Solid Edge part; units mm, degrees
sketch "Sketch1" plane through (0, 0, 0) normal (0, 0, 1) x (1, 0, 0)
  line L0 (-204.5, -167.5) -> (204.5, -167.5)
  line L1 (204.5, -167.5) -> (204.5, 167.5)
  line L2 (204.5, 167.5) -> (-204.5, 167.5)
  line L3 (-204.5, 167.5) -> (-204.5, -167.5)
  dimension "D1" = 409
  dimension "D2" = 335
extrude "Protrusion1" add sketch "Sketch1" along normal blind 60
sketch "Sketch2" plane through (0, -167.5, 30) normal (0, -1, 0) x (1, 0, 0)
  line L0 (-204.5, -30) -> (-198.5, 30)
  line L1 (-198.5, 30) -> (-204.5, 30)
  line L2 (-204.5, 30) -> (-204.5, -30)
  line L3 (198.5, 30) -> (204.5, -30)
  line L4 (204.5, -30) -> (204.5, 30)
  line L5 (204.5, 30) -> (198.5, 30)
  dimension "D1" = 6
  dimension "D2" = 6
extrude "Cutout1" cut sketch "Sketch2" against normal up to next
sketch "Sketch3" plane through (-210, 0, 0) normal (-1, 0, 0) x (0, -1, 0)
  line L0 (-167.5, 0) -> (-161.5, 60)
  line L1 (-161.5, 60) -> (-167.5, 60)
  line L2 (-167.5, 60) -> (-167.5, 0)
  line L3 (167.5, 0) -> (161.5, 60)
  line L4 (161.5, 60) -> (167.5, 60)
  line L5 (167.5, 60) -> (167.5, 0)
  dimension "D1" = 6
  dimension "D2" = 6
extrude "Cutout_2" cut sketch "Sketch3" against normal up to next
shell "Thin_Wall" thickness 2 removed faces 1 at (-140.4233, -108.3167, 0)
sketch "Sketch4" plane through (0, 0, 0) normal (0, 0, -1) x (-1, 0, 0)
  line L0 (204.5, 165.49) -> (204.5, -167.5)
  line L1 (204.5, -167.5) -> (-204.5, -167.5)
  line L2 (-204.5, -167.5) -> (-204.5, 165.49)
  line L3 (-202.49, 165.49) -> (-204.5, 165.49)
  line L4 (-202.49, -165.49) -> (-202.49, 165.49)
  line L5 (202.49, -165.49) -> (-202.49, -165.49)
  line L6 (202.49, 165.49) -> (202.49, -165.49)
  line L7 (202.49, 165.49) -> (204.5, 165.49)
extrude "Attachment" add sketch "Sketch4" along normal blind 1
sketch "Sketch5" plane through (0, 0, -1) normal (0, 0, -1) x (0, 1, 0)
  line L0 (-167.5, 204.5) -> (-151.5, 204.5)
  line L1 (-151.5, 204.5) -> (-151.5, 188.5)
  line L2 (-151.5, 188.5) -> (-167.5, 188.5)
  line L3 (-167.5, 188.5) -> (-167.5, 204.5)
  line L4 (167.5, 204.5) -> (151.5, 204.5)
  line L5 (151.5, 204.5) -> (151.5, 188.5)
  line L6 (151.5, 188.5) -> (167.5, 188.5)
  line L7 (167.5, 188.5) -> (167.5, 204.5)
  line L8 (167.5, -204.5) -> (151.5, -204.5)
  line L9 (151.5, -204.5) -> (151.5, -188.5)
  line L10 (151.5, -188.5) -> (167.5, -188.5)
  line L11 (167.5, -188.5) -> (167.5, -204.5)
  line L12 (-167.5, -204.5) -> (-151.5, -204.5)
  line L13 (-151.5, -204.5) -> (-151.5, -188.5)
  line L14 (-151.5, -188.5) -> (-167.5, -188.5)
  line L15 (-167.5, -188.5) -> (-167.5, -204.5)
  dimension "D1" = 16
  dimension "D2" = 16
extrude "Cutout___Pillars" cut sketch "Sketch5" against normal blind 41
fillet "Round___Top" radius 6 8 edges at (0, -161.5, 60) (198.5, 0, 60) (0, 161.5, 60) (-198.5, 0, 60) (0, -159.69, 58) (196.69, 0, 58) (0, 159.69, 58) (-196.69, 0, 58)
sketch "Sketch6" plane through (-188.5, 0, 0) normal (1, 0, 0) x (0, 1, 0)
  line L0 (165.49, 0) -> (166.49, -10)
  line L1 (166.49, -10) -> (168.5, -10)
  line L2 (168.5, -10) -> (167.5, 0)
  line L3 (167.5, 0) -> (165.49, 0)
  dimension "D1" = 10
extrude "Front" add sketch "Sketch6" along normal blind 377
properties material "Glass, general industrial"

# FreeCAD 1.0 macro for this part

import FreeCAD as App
import Part
import Sketcher
from FreeCAD import Vector
Q = App.Units.Quantity


def edges_at(feature, points):
    """Names of the edges that pass closest to the given points."""
    edges = feature.Shape.Edges
    near = lambda p: min(range(len(edges)), key=lambda i: edges[i].distToShape(Part.Vertex(*p))[0])
    return sorted({f"Edge{near(p) + 1}" for p in points})


def faces_at(feature, points):
    """Names of the faces that lie closest to the given points."""
    faces = feature.Shape.Faces
    near = lambda p: min(range(len(faces)), key=lambda i: faces[i].distToShape(Part.Vertex(*p))[0])
    return sorted({f"Face{near(p) + 1}" for p in points})

doc = App.newDocument("Part")
body = doc.addObject("PartDesign::Body", "Body")

sketch1 = doc.addObject("Sketcher::SketchObject", "Sketch")
body.addObject(sketch1)
sketch1.AttachmentSupport = (doc.XY_Plane, [""])
sketch1.MapMode = "FlatFace"
sketch1.addGeometry([
    Part.LineSegment(Vector(-204, 168, 0), Vector(-204, -168, 0)),
    Part.LineSegment(Vector(-204, -168, 0), Vector(204, -168, 0)),
    Part.LineSegment(Vector(204, -168, 0), Vector(204, 168, 0)),
    Part.LineSegment(Vector(204, 168, 0), Vector(-204, 168, 0)),
], False)
sketch1.addConstraint([
    Sketcher.Constraint("Coincident", 0, 2, 1, 1),
    Sketcher.Constraint("Coincident", 1, 2, 2, 1),
    Sketcher.Constraint("Coincident", 2, 2, 3, 1),
    Sketcher.Constraint("Coincident", 3, 2, 0, 1),
    Sketcher.Constraint("Vertical", 0),
    Sketcher.Constraint("Horizontal", 1),
    Sketcher.Constraint("Vertical", 2),
    Sketcher.Constraint("Horizontal", 3),
    Sketcher.Constraint("Symmetric", 0, 2, 2, 2, -1, 1),
    Sketcher.Constraint("DistanceX", 0, 2, -1, 1, Q("204.5 mm")),
    Sketcher.Constraint("DistanceY", 0, 2, 0, 1, Q("335 mm")),
])
pad1 = doc.addObject("PartDesign::Pad", "Pad")
body.addObject(pad1)
pad1.Profile = sketch1
pad1.Length = 60

sketch2 = doc.addObject("Sketcher::SketchObject", "Sketch001")
body.addObject(sketch2)
sketch2.AttachmentSupport = (doc.XZ_Plane, [""])
sketch2.MapMode = "FlatFace"
sketch2.AttachmentOffset = App.Placement(Vector(0, 0, 167.5), App.Rotation())
sketch2.addGeometry([
    Part.LineSegment(Vector(-204, 60, 0), Vector(-204, 0, 0)),
    Part.LineSegment(Vector(-204, 0, 0), Vector(-198, 60, 0)),
    Part.LineSegment(Vector(-198, 60, 0), Vector(-204, 60, 0)),
    Part.LineSegment(Vector(204, 60, 0), Vector(198, 60, 0)),
    Part.LineSegment(Vector(198, 60, 0), Vector(204, 0, 0)),
    Part.LineSegment(Vector(204, 0, 0), Vector(204, 60, 0)),
], False)
sketch2.addConstraint([
    Sketcher.Constraint("Coincident", 0, 2, 1, 1),
    Sketcher.Constraint("Coincident", 1, 2, 2, 1),
    Sketcher.Constraint("Coincident", 2, 2, 0, 1),
    Sketcher.Constraint("Coincident", 3, 2, 4, 1),
    Sketcher.Constraint("Coincident", 4, 2, 5, 1),
    Sketcher.Constraint("Coincident", 5, 2, 3, 1),
    Sketcher.Constraint("Vertical", 0),
    Sketcher.Constraint("Horizontal", 2),
    Sketcher.Constraint("Horizontal", 3),
    Sketcher.Constraint("Vertical", 5),
    Sketcher.Constraint("Symmetric", 0, 2, 4, 2, -1, 1),
    Sketcher.Constraint("Symmetric", 1, 2, 3, 2, -2),
    Sketcher.Constraint("PointOnObject", 0, 2, -1),
    Sketcher.Constraint("DistanceX", 0, 2, -1, 1, Q("204.5 mm")),
    Sketcher.Constraint("DistanceX", 1, 2, -1, 1, Q("198.5 mm")),
    Sketcher.Constraint("DistanceY", 0, 2, 0, 1, Q("60 mm")),
])
pocket1 = doc.addObject("PartDesign::Pocket", "Pocket")
body.addObject(pocket1)
pocket1.Profile = sketch2
pocket1.Type = "UpToFirst"

sketch3 = doc.addObject("Sketcher::SketchObject", "Sketch002")
body.addObject(sketch3)
sketch3.AttachmentSupport = (doc.YZ_Plane, [""])
sketch3.MapMode = "FlatFace"
sketch3.AttachmentOffset = App.Placement(Vector(0, 0, -210), App.Rotation())
sketch3.addGeometry([
    Part.LineSegment(Vector(168, 60, 0), Vector(168, 0, 0)),
    Part.LineSegment(Vector(168, 0, 0), Vector(162, 60, 0)),
    Part.LineSegment(Vector(162, 60, 0), Vector(168, 60, 0)),
    Part.LineSegment(Vector(-162, 60, 0), Vector(-168, 0, 0)),
    Part.LineSegment(Vector(-168, 0, 0), Vector(-168, 60, 0)),
    Part.LineSegment(Vector(-168, 60, 0), Vector(-162, 60, 0)),
], False)
sketch3.addConstraint([
    Sketcher.Constraint("Coincident", 0, 2, 1, 1),
    Sketcher.Constraint("Coincident", 1, 2, 2, 1),
    Sketcher.Constraint("Coincident", 2, 2, 0, 1),
    Sketcher.Constraint("Coincident", 3, 2, 4, 1),
    Sketcher.Constraint("Coincident", 4, 2, 5, 1),
    Sketcher.Constraint("Coincident", 5, 2, 3, 1),
    Sketcher.Constraint("Vertical", 0),
    Sketcher.Constraint("Horizontal", 2),
    Sketcher.Constraint("Vertical", 4),
    Sketcher.Constraint("Horizontal", 5),
    Sketcher.Constraint("Symmetric", 0, 2, 3, 2, -1, 1),
    Sketcher.Constraint("Symmetric", 1, 2, 5, 2, -2),
    Sketcher.Constraint("PointOnObject", 0, 2, -1),
    Sketcher.Constraint("DistanceX", -1, 1, 1, 2, Q("161.5 mm")),
    Sketcher.Constraint("DistanceX", 2, 1, 2, 2, Q("6 mm")),
    Sketcher.Constraint("DistanceY", 0, 2, 0, 1, Q("60 mm")),
])
pocket2 = doc.addObject("PartDesign::Pocket", "Pocket001")
body.addObject(pocket2)
pocket2.Profile = sketch3
pocket2.Length = 414.5
pocket2.Reversed = True
doc.recompute()

thickness = doc.addObject("PartDesign::Thickness", "Thickness")
body.addObject(thickness)
thickness.Base = (pocket2, faces_at(pocket2, [(-140.423, -108.317, 0)]))
thickness.Value = 2
thickness.Reversed = True
thickness.Join = "Intersection"

sketch4 = doc.addObject("Sketcher::SketchObject", "Sketch003")
body.addObject(sketch4)
sketch4.AttachmentSupport = (doc.XY_Plane, [""])
sketch4.MapMode = "FlatFace"
sketch4.addGeometry([
    Part.LineSegment(Vector(-204.5, -167.5, 0), Vector(-204.5, 165.5, 0)),
    Part.LineSegment(Vector(-204.5, 165.5, 0), Vector(-202.5, 165.5, 0)),
    Part.LineSegment(Vector(-202.5, 165.5, 0), Vector(-202.5, -165.5, 0)),
    Part.LineSegment(Vector(-202.5, -165.5, 0), Vector(202.5, -165.5, 0)),
    Part.LineSegment(Vector(202.5, -165.5, 0), Vector(202.5, 165.5, 0)),
    Part.LineSegment(Vector(202.5, 165.5, 0), Vector(204.5, 165.5, 0)),
    Part.LineSegment(Vector(204.5, 165.5, 0), Vector(204.5, -167.5, 0)),
    Part.LineSegment(Vector(204.5, -167.5, 0), Vector(-204.5, -167.5, 0)),
], False)
sketch4.addConstraint([
    Sketcher.Constraint("Coincident", 0, 2, 1, 1),
    Sketcher.Constraint("Coincident", 1, 2, 2, 1),
    Sketcher.Constraint("Coincident", 2, 2, 3, 1),
    Sketcher.Constraint("Coincident", 3, 2, 4, 1),
    Sketcher.Constraint("Coincident", 4, 2, 5, 1),
    Sketcher.Constraint("Coincident", 5, 2, 6, 1),
    Sketcher.Constraint("Coincident", 6, 2, 7, 1),
    Sketcher.Constraint("Coincident", 7, 2, 0, 1),
    Sketcher.Constraint("Vertical", 0),
    Sketcher.Constraint("Horizontal", 1),
    Sketcher.Constraint("Vertical", 2),
    Sketcher.Constraint("Horizontal", 3),
    Sketcher.Constraint("Vertical", 4),
    Sketcher.Constraint("Horizontal", 5),
    Sketcher.Constraint("Vertical", 6),
    Sketcher.Constraint("Horizontal", 7),
    Sketcher.Constraint("Symmetric", 1, 2, 3, 2, -1, 1),
    Sketcher.Constraint("Symmetric", 0, 2, 5, 2, -2),
    Sketcher.Constraint("DistanceX", 7, 2, 7, 1, Q("409 mm")),
    Sketcher.Constraint("DistanceX", 1, 1, 1, 2, Q("2.01 mm")),
    Sketcher.Constraint("DistanceY", 0, 1, 0, 2, Q("332.99 mm")),
    Sketcher.Constraint("DistanceY", 2, 2, 2, 1, Q("330.98 mm")),
])
pad2 = doc.addObject("PartDesign::Pad", "Pad001")
body.addObject(pad2)
pad2.Profile = sketch4
pad2.Length = 1
pad2.Reversed = True

sketch5 = doc.addObject("Sketcher::SketchObject", "Sketch004")
body.addObject(sketch5)
sketch5.AttachmentSupport = (doc.XY_Plane, [""])
sketch5.MapMode = "FlatFace"
sketch5.AttachmentOffset = App.Placement(Vector(0, 0, -1), App.Rotation())
sketch5.addGeometry([
    Part.LineSegment(Vector(204, -152, 0), Vector(204, -168, 0)),
    Part.LineSegment(Vector(204, -168, 0), Vector(188, -168, 0)),
    Part.LineSegment(Vector(188, -168, 0), Vector(188, -152, 0)),
    Part.LineSegment(Vector(188, -152, 0), Vector(204, -152, 0)),
    Part.LineSegment(Vector(188, 168, 0), Vector(204, 168, 0)),
    Part.LineSegment(Vector(204, 168, 0), Vector(204, 152, 0)),
    Part.LineSegment(Vector(204, 152, 0), Vector(188, 152, 0)),
    Part.LineSegment(Vector(188, 152, 0), Vector(188, 168, 0)),
    Part.LineSegment(Vector(-204, 152, 0), Vector(-204, 168, 0)),
    Part.LineSegment(Vector(-204, 168, 0), Vector(-188, 168, 0)),
    Part.LineSegment(Vector(-188, 168, 0), Vector(-188, 152, 0)),
    Part.LineSegment(Vector(-188, 152, 0), Vector(-204, 152, 0)),
    Part.LineSegment(Vector(-188, -168, 0), Vector(-204, -168, 0)),
    Part.LineSegment(Vector(-204, -168, 0), Vector(-204, -152, 0)),
    Part.LineSegment(Vector(-204, -152, 0), Vector(-188, -152, 0)),
    Part.LineSegment(Vector(-188, -152, 0), Vector(-188, -168, 0)),
], False)
sketch5.addConstraint([
    Sketcher.Constraint("Coincident", 0, 2, 1, 1),
    Sketcher.Constraint("Coincident", 1, 2, 2, 1),
    Sketcher.Constraint("Coincident", 2, 2, 3, 1),
    Sketcher.Constraint("Coincident", 3, 2, 0, 1),
    Sketcher.Constraint("Coincident", 4, 2, 5, 1),
    Sketcher.Constraint("Coincident", 5, 2, 6, 1),
    Sketcher.Constraint("Coincident", 6, 2, 7, 1),
    Sketcher.Constraint("Coincident", 7, 2, 4, 1),
    Sketcher.Constraint("Coincident", 8, 2, 9, 1),
    Sketcher.Constraint("Coincident", 9, 2, 10, 1),
    Sketcher.Constraint("Coincident", 10, 2, 11, 1),
    Sketcher.Constraint("Coincident", 11, 2, 8, 1),
    Sketcher.Constraint("Coincident", 12, 2, 13, 1),
    Sketcher.Constraint("Coincident", 13, 2, 14, 1),
    Sketcher.Constraint("Coincident", 14, 2, 15, 1),
    Sketcher.Constraint("Coincident", 15, 2, 12, 1),
    Sketcher.Constraint("Vertical", 0),
    Sketcher.Constraint("Horizontal", 1),
    Sketcher.Constraint("Vertical", 2),
    Sketcher.Constraint("Horizontal", 3),
    Sketcher.Constraint("Horizontal", 4),
    Sketcher.Constraint("Vertical", 5),
    Sketcher.Constraint("Horizontal", 6),
    Sketcher.Constraint("Vertical", 7),
    Sketcher.Constraint("Vertical", 8),
    Sketcher.Constraint("Horizontal", 9),
    Sketcher.Constraint("Vertical", 10),
    Sketcher.Constraint("Horizontal", 11),
    Sketcher.Constraint("Horizontal", 12),
    Sketcher.Constraint("Vertical", 13),
    Sketcher.Constraint("Horizontal", 14),
    Sketcher.Constraint("Vertical", 15),
    Sketcher.Constraint("Symmetric", 0, 2, 8, 2, -1, 1),
    Sketcher.Constraint("Symmetric", 2, 2, 10, 2, -1, 1),
    Sketcher.Constraint("Symmetric", 4, 2, 12, 2, -1, 1),
    Sketcher.Constraint("Symmetric", 6, 2, 14, 2, -1, 1),
    Sketcher.Constraint("Symmetric", 4, 2, 8, 2, -2),
    Sketcher.Constraint("Symmetric", 6, 2, 10, 2, -2),
    Sketcher.Constraint("Equal", 14, 0),
    Sketcher.Constraint("DistanceY", 2, 2, -1, 1, Q("151.5 mm")),
    Sketcher.Constraint("DistanceX", 1, 2, 1, 1, Q("16 mm")),
    Sketcher.Constraint("DistanceX", 8, 2, 7, 2, Q("393 mm")),
])
pocket3 = doc.addObject("PartDesign::Pocket", "Pocket002")
body.addObject(pocket3)
pocket3.Profile = sketch5
pocket3.Length = 41
pocket3.Reversed = True
doc.recompute()

fillet = doc.addObject("PartDesign::Fillet", "Fillet")
body.addObject(fillet)
fillet.Base = (pocket3, edges_at(pocket3, [
    (0, -161.5, 60),
    (198.5, 0, 60),
    (0, 161.5, 60),
    (-198.5, 0, 60),
    (0, -159.69, 58),
    (196.69, 0, 58),
    (0, 159.69, 58),
    (-196.69, 0, 58),
]))
fillet.Radius = 6

sketch6 = doc.addObject("Sketcher::SketchObject", "Sketch005")
body.addObject(sketch6)
sketch6.AttachmentSupport = (doc.YZ_Plane, [""])
sketch6.MapMode = "FlatFace"
sketch6.AttachmentOffset = App.Placement(Vector(0, 0, -188.5), App.Rotation())
sketch6.addGeometry([
    Part.LineSegment(Vector(167.5, 0, 0), Vector(165.5, 0, 0)),
    Part.LineSegment(Vector(165.5, 0, 0), Vector(166.5, -10, 0)),
    Part.LineSegment(Vector(166.5, -10, 0), Vector(168.5, -10, 0)),
    Part.LineSegment(Vector(168.5, -10, 0), Vector(167.5, 0, 0)),
], False)
sketch6.addConstraint([
    Sketcher.Constraint("Coincident", 0, 2, 1, 1),
    Sketcher.Constraint("Coincident", 1, 2, 2, 1),
    Sketcher.Constraint("Coincident", 2, 2, 3, 1),
    Sketcher.Constraint("Coincident", 3, 2, 0, 1),
    Sketcher.Constraint("Horizontal", 0),
    Sketcher.Constraint("Horizontal", 2),
    Sketcher.Constraint("PointOnObject", 0, 2, -1),
    Sketcher.Constraint("Parallel", 1, 3),
    Sketcher.Constraint("DistanceY", 1, 2, -1, 1, Q("10 mm")),
    Sketcher.Constraint("DistanceX", 0, 2, 1, 2, Q("1 mm")),
    Sketcher.Constraint("DistanceX", 0, 2, 0, 1, Q("2.01 mm")),
    Sketcher.Constraint("DistanceX", -1, 1, 2, 2, Q("168.5 mm")),
])
pad3 = doc.addObject("PartDesign::Pad", "Pad002")
body.addObject(pad3)
pad3.Profile = sketch6
pad3.Length = 377

doc.recompute()
